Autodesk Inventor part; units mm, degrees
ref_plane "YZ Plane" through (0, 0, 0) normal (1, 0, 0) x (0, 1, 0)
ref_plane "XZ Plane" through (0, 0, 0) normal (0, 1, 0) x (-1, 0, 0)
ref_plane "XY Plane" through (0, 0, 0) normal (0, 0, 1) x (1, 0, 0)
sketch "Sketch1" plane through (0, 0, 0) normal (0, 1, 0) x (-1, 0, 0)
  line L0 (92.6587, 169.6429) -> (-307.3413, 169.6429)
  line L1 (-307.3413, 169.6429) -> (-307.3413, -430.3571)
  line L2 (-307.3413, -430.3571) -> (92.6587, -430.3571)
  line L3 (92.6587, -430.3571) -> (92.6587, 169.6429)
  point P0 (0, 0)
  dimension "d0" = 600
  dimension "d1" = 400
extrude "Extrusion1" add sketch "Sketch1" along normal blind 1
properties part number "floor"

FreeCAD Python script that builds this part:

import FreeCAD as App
import Part
import Sketcher
from FreeCAD import Vector
Q = App.Units.Quantity

doc = App.newDocument("Part")
body = doc.addObject("PartDesign::Body", "Body")

sketch1 = doc.addObject("Sketcher::SketchObject", "Sketch")
body.addObject(sketch1)
sketch1.AttachmentSupport = (doc.XZ_Plane, [""])
sketch1.MapMode = "FlatFace"
sketch1.addGeometry(Part.LineSegment(Vector(-92.6587, -430.3571, 0), Vector(-92.6587, 169.6429, 0)), False)
sketch1.addGeometry(Part.LineSegment(Vector(-92.6587, 169.6429, 0), Vector(307.3413, 169.6429, 0)), False)
sketch1.addGeometry(Part.LineSegment(Vector(307.3413, 169.6429, 0), Vector(307.3413, -430.3571, 0)), False)
sketch1.addGeometry(Part.LineSegment(Vector(307.3413, -430.3571, 0), Vector(-92.6587, -430.3571, 0)), False)
sketch1.addConstraint(Sketcher.Constraint("Coincident", 0, 2, 1, 1))
sketch1.addConstraint(Sketcher.Constraint("Coincident", 1, 2, 2, 1))
sketch1.addConstraint(Sketcher.Constraint("Coincident", 2, 2, 3, 1))
sketch1.addConstraint(Sketcher.Constraint("Coincident", 3, 2, 0, 1))
sketch1.addConstraint(Sketcher.Constraint("Vertical", 0))
sketch1.addConstraint(Sketcher.Constraint("Horizontal", 1))
sketch1.addConstraint(Sketcher.Constraint("Vertical", 2))
sketch1.addConstraint(Sketcher.Constraint("Horizontal", 3))
sketch1.addConstraint(Sketcher.Constraint("DistanceX", 1, 1, 1, 2, Q("400 mm")))
sketch1.addConstraint(Sketcher.Constraint("DistanceY", 0, 1, 0, 2, Q("600 mm")))
sketch1.addConstraint(Sketcher.Constraint("DistanceY", -1, 1, 0, 2, Q("169.643 mm")))
sketch1.addConstraint(Sketcher.Constraint("DistanceX", 0, 2, -1, 1, Q("92.6587 mm")))
pad1 = doc.addObject("PartDesign::Pad", "Pad")
body.addObject(pad1)
pad1.Profile = sketch1
pad1.Length = 1
pad1.Reversed = True

doc.recompute()
